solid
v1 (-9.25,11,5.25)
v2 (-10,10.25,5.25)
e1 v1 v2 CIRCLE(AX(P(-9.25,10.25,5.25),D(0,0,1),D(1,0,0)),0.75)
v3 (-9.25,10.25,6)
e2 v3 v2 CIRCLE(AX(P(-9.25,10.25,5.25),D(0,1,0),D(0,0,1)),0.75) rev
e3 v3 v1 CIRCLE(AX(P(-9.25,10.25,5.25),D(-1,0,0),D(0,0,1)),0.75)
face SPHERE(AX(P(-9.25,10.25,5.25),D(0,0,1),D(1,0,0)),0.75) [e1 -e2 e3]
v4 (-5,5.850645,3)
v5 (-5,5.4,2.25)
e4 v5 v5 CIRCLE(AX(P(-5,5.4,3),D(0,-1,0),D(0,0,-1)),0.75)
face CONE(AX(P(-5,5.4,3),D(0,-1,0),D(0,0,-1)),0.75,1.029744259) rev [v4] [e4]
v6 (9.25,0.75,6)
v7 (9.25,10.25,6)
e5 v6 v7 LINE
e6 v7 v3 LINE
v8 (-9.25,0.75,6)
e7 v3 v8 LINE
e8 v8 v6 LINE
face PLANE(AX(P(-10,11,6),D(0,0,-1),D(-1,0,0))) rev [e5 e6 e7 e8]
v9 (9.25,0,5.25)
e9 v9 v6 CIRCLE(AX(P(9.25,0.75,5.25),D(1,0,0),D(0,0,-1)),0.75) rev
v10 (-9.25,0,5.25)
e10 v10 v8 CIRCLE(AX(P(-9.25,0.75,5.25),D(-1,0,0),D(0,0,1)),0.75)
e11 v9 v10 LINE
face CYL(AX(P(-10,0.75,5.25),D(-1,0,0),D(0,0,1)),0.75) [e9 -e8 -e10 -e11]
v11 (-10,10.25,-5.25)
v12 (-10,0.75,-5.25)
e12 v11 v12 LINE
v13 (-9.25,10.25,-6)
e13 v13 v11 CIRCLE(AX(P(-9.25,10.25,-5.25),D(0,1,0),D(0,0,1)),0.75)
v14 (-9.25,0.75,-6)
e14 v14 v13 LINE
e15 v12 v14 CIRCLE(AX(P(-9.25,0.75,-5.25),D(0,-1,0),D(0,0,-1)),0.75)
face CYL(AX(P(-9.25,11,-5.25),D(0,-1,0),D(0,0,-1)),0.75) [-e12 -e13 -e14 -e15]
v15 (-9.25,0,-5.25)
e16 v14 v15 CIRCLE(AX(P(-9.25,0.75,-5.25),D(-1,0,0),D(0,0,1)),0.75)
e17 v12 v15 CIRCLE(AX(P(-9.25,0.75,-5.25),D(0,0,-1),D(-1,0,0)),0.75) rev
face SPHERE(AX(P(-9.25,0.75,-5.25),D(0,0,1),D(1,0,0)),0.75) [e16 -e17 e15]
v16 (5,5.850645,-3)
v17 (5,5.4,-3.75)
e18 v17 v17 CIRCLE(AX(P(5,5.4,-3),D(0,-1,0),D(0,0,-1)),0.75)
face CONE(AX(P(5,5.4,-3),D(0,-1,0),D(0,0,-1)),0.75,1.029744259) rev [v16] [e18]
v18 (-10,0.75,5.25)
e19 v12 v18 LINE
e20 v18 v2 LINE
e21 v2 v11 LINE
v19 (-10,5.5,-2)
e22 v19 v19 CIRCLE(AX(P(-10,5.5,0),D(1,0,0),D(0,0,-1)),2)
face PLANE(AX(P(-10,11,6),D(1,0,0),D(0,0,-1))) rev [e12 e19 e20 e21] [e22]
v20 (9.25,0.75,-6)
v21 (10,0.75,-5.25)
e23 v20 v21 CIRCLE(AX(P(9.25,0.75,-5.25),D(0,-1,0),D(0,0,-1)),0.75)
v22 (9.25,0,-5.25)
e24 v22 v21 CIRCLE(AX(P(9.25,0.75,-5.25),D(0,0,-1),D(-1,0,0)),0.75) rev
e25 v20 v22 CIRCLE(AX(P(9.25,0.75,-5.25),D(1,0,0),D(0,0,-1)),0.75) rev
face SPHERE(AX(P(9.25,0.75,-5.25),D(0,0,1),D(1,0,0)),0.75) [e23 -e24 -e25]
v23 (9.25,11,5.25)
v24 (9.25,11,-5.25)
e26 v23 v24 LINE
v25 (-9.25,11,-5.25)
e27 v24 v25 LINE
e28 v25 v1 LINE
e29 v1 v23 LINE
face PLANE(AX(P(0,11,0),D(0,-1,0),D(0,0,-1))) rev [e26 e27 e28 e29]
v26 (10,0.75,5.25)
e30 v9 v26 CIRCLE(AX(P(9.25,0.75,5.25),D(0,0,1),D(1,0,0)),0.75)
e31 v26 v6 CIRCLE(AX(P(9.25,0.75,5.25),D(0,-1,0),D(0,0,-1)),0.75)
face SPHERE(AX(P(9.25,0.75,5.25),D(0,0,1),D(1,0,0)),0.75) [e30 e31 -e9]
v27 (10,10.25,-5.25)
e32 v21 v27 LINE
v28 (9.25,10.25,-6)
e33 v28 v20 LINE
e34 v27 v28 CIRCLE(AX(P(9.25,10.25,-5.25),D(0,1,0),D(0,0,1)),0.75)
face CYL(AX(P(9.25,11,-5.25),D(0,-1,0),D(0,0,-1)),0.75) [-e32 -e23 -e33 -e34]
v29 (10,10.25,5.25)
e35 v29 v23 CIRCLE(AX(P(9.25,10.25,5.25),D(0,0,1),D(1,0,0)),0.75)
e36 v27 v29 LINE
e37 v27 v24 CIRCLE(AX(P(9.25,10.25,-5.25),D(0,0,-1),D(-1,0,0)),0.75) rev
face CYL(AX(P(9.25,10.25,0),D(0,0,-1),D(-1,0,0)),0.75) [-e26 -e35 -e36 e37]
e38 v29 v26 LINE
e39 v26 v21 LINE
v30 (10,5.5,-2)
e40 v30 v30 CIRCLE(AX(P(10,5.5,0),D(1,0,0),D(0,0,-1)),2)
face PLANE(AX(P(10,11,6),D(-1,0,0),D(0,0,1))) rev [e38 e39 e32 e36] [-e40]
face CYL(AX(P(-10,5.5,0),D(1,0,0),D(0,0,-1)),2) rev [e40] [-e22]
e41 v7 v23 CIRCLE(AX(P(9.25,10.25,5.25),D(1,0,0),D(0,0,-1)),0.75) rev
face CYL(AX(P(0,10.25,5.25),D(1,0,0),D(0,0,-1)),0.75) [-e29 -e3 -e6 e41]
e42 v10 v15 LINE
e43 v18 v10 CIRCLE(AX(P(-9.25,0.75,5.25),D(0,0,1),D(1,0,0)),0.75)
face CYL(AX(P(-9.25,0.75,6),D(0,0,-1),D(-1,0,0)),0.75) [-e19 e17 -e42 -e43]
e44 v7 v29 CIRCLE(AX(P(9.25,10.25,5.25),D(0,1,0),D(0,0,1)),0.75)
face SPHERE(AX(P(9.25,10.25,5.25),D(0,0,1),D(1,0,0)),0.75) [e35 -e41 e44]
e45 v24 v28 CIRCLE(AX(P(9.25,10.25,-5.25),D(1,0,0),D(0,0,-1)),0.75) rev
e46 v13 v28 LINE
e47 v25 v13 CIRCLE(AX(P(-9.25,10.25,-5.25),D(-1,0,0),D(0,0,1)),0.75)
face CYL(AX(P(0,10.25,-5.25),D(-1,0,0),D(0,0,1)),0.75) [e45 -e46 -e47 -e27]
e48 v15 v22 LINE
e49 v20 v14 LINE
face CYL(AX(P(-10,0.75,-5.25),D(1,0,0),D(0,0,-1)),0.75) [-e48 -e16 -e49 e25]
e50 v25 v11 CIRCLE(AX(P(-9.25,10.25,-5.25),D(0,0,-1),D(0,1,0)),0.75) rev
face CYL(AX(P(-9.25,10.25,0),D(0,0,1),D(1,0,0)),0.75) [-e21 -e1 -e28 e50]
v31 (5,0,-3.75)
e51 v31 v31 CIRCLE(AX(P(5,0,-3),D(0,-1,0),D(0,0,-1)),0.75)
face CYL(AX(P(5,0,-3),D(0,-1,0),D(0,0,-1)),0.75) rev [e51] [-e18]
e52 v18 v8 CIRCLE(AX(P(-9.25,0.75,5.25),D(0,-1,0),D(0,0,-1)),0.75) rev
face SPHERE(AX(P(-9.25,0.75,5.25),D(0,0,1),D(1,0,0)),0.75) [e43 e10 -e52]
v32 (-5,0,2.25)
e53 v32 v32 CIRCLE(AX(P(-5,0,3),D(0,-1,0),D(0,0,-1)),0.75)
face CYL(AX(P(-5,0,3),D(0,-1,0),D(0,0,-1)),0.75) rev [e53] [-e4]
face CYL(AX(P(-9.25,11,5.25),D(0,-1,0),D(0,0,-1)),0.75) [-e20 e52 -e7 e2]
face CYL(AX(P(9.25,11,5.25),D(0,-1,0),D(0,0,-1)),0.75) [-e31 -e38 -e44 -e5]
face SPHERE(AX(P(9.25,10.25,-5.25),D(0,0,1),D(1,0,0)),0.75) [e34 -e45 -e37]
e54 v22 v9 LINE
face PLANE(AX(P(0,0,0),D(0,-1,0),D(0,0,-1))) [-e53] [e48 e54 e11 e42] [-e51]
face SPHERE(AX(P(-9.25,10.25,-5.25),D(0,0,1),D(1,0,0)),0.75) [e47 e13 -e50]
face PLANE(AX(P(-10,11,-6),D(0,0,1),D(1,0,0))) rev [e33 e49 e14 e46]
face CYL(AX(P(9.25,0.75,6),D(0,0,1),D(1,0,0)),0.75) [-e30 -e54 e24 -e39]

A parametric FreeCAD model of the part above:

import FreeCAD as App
import Part
import Sketcher


def edges_at(feature, points):
    """Names of the edges that pass closest to the given points."""
    edges = feature.Shape.Edges
    near = lambda p: min(range(len(edges)), key=lambda i: edges[i].distToShape(Part.Vertex(*p))[0])
    return sorted({f"Edge{near(p) + 1}" for p in points})

doc = App.newDocument("Part")
params = doc.addObject("Spreadsheet::Sheet", "Params")
for row, (alias, value) in enumerate([
    ("sketch1_width", "20 mm"),
    ("sketch1_height", "12 mm"),
    ("pad1_length", "11 mm"),
    ("sketch2_diameter", "1.5 mm"),
    ("hole_diameter", "1.5 mm"),
    ("hole_depth", "5.4 mm"),
    ("sketch3_diameter", "4 mm"),
    ("fillet_radius", "0.75 mm"),
], start=1):
    params.set(f"A{row}", alias)
    params.set(f"B{row}", "=" + value)
    params.setAlias(f"B{row}", alias)

body = doc.addObject("PartDesign::Body", "Body")

sketch1 = doc.addObject("Sketcher::SketchObject", "Sketch")
body.addObject(sketch1)
sketch1.AttachmentSupport = (doc.XZ_Plane, [""])
sketch1.MapMode = "FlatFace"
sketch1.addGeometry(Part.LineSegment(App.Vector(-10, -6, 0), App.Vector(-10, 6, 0)), False)
sketch1.addGeometry(Part.LineSegment(App.Vector(-10, 6, 0), App.Vector(10, 6, 0)), False)
sketch1.addGeometry(Part.LineSegment(App.Vector(10, 6, 0), App.Vector(10, -6, 0)), False)
sketch1.addGeometry(Part.LineSegment(App.Vector(10, -6, 0), App.Vector(-10, -6, 0)), False)
sketch1.addConstraint(Sketcher.Constraint("Coincident", 0, 2, 1, 1))
sketch1.addConstraint(Sketcher.Constraint("Coincident", 1, 2, 2, 1))
sketch1.addConstraint(Sketcher.Constraint("Coincident", 2, 2, 3, 1))
sketch1.addConstraint(Sketcher.Constraint("Coincident", 3, 2, 0, 1))
sketch1.addConstraint(Sketcher.Constraint("Vertical", 0))
sketch1.addConstraint(Sketcher.Constraint("Horizontal", 1))
sketch1.addConstraint(Sketcher.Constraint("Vertical", 2))
sketch1.addConstraint(Sketcher.Constraint("Horizontal", 3))
sketch1.addConstraint(Sketcher.Constraint("Symmetric", 0, 2, 2, 2, -1, 1))
sketch1.addConstraint(Sketcher.Constraint("DistanceX", 1, 1, 1, 2, 20.0))
sketch1.addConstraint(Sketcher.Constraint("DistanceY", 0, 1, 0, 2, 12.0))
sketch1.setExpression("Constraints[9]", "Params.sketch1_width")
sketch1.setExpression("Constraints[10]", "Params.sketch1_height")
pad1 = doc.addObject("PartDesign::Pad", "Pad")
body.addObject(pad1)
pad1.Profile = sketch1
pad1.setExpression("Length", "Params.pad1_length")
pad1.Reversed = True

sketch2 = doc.addObject("Sketcher::SketchObject", "Sketch001")
body.addObject(sketch2)
sketch2.AttachmentSupport = (doc.XZ_Plane, [""])
sketch2.MapMode = "FlatFace"
sketch2.addGeometry(Part.Circle(App.Vector(5, -3, 0), App.Vector(0, 0, 1), 0.8), False)
sketch2.addGeometry(Part.Circle(App.Vector(-5, 3, 0), App.Vector(0, 0, 1), 0.8), False)
sketch2.addConstraint(Sketcher.Constraint("Equal", 0, 1))
sketch2.addConstraint(Sketcher.Constraint("Symmetric", 0, 3, 1, 3, -1, 1))
sketch2.addConstraint(Sketcher.Constraint("Diameter", 0, 1.5))
sketch2.addConstraint(Sketcher.Constraint("DistanceX", -1, 1, 0, 3, 5.0))
sketch2.addConstraint(Sketcher.Constraint("DistanceY", 0, 3, -1, 1, 3.0))
sketch2.setExpression("Constraints[2]", "Params.sketch2_diameter")
doc.recompute()
hole = doc.addObject("PartDesign::Hole", "Hole")
body.addObject(hole)
hole.Profile = sketch2
hole.ThreadType = "None"
hole.setExpression("Diameter", "Params.hole_diameter")
hole.DepthType = "Dimension"
hole.setExpression("Depth", "Params.hole_depth")
hole.DrillPoint = "Angled"
hole.DrillPointAngle = 118

sketch3 = doc.addObject("Sketcher::SketchObject", "Sketch002")
body.addObject(sketch3)
sketch3.AttachmentSupport = (doc.YZ_Plane, [""])
sketch3.MapMode = "FlatFace"
sketch3.AttachmentOffset = App.Placement(App.Vector(0, 0, 10), App.Rotation())
sketch3.addGeometry(Part.Circle(App.Vector(5.5, 0, 0), App.Vector(0, 0, 1), 2), False)
sketch3.addConstraint(Sketcher.Constraint("PointOnObject", 0, 3, -1))
sketch3.addConstraint(Sketcher.Constraint("Diameter", 0, 4.0))
sketch3.addConstraint(Sketcher.Constraint("DistanceX", -1, 1, 0, 3, 5.5))
sketch3.setExpression("Constraints[1]", "Params.sketch3_diameter")
pocket1 = doc.addObject("PartDesign::Pocket", "Pocket")
body.addObject(pocket1)
pocket1.Profile = sketch3
pocket1.Type = "ThroughAll"
doc.recompute()

fillet = doc.addObject("PartDesign::Fillet", "Fillet")
body.addObject(fillet)
fillet.Base = (pocket1, edges_at(pocket1, [
    (-10, 11, 0),
    (0, 11, 6),
    (10, 11, 0),
    (0, 0, 6),
    (-10, 0, 0),
    (0, 0, -6),
    (10, 0, 0),
    (0, 11, -6),
    (10, 5.5, 6),
    (-10, 5.5, 6),
    (-10, 5.5, -6),
    (10, 5.5, -6),
]))
fillet.setExpression("Radius", "Params.fillet_radius")

doc.recompute()
